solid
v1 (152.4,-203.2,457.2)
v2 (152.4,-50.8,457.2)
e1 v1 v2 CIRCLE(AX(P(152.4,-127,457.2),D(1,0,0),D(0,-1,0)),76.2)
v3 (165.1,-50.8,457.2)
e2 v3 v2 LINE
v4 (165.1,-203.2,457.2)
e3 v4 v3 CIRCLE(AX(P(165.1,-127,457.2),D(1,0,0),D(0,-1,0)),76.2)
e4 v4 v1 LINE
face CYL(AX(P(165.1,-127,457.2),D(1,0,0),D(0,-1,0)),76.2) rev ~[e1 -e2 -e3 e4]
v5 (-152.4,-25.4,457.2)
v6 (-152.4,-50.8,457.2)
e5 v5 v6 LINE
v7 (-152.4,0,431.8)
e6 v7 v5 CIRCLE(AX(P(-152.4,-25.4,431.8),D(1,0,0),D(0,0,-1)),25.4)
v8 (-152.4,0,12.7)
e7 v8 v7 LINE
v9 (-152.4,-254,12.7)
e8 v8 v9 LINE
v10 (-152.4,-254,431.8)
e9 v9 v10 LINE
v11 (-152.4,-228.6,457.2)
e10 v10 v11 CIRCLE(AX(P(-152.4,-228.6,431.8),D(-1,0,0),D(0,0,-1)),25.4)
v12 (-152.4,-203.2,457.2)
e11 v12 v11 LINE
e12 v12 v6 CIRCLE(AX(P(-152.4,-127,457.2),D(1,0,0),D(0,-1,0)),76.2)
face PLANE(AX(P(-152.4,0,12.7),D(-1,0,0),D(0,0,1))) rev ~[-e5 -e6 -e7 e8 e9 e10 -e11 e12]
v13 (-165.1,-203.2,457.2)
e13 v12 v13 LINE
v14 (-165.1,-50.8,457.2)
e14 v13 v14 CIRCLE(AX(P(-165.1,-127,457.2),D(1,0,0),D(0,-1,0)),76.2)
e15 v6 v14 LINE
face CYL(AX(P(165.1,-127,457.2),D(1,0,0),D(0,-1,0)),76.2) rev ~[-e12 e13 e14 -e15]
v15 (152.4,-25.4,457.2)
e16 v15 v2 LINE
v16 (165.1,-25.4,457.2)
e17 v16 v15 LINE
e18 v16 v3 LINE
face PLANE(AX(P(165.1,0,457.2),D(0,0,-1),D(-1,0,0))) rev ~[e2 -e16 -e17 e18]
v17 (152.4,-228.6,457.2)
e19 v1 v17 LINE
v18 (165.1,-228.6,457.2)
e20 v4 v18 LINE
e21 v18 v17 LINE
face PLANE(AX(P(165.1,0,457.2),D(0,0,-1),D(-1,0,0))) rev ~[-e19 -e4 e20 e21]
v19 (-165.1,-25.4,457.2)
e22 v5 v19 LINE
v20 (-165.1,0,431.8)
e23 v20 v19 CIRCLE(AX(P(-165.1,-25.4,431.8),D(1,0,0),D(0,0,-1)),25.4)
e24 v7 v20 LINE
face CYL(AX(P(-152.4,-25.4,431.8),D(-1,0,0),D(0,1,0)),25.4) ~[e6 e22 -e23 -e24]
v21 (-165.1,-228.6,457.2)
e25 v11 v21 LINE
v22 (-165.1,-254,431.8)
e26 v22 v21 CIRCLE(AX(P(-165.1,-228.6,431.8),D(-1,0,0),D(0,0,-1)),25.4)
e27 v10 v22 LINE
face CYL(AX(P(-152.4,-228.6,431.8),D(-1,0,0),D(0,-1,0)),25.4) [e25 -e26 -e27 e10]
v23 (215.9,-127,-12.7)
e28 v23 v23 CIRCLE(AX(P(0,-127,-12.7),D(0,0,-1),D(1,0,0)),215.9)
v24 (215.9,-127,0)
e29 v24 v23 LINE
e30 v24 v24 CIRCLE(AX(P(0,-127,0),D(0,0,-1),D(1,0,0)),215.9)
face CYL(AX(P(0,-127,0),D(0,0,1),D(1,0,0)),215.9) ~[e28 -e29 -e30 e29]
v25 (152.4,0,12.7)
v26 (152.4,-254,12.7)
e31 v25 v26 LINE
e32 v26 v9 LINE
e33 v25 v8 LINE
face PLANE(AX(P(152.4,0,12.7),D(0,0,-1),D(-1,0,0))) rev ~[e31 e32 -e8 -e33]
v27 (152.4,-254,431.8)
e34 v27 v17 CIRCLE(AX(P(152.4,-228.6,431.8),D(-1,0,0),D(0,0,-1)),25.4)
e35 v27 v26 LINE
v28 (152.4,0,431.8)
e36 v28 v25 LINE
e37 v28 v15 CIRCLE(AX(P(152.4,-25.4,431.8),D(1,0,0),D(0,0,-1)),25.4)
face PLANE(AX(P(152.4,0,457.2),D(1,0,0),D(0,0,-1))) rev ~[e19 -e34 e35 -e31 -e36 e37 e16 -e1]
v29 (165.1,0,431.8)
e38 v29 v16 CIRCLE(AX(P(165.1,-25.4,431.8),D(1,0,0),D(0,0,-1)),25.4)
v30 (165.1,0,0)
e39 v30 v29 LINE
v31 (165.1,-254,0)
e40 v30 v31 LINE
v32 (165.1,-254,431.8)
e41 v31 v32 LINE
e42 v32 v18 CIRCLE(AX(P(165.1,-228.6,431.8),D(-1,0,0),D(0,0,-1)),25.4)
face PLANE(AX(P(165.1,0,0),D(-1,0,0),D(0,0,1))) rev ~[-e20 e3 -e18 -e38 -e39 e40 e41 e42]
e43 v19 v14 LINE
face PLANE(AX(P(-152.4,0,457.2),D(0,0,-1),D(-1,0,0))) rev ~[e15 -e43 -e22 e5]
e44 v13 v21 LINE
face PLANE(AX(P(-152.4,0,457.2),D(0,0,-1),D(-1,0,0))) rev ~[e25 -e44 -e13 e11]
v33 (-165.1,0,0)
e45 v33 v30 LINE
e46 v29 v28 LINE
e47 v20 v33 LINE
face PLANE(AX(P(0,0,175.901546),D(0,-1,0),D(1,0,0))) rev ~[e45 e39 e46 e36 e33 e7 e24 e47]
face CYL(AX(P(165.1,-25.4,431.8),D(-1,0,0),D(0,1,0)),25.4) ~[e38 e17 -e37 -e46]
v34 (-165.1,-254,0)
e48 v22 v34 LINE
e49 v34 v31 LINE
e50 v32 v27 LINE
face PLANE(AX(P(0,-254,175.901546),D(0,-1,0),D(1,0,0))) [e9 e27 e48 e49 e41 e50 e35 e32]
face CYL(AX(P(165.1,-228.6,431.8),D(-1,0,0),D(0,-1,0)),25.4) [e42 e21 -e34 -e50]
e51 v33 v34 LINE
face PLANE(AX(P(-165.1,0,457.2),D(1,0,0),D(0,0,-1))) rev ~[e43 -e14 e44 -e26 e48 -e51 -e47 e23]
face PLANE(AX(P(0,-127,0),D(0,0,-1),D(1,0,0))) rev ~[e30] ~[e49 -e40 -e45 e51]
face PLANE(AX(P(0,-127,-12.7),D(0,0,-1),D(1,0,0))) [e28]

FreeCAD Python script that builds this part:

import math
import FreeCAD as App
import Part
import Sketcher
Q = App.Units.Quantity


def edges_at(feature, points):
    """Names of the edges that pass closest to the given points."""
    edges = feature.Shape.Edges
    near = lambda p: min(range(len(edges)), key=lambda i: edges[i].distToShape(Part.Vertex(*p))[0])
    return sorted({f"Edge{near(p) + 1}" for p in points})

doc = App.newDocument("Part")
body = doc.addObject("PartDesign::Body", "Body")

sketch1 = body.newObject("Sketcher::SketchObject", "Sketch")
sketch1.AttachmentSupport = (doc.getObject("XZ_Plane"), [""])
sketch1.MapMode = "FlatFace"
sketch1.addGeometry([
    Part.LineSegment(App.Vector(-152, 13, 0), App.Vector(-152, 457, 0)),
    Part.LineSegment(App.Vector(-152, 457, 0), App.Vector(-165, 457, 0)),
    Part.LineSegment(App.Vector(-165, 457, 0), App.Vector(-165, 0, 0)),
    Part.LineSegment(App.Vector(-165, 0, 0), App.Vector(165, 0, 0)),
    Part.LineSegment(App.Vector(165, 0, 0), App.Vector(165, 457, 0)),
    Part.LineSegment(App.Vector(165, 457, 0), App.Vector(152, 457, 0)),
    Part.LineSegment(App.Vector(152, 457, 0), App.Vector(152, 13, 0)),
    Part.LineSegment(App.Vector(152, 13, 0), App.Vector(-152, 13, 0)),
], False)
sketch1.addConstraint([
    Sketcher.Constraint("Coincident", 0, 2, 1, 1),
    Sketcher.Constraint("Coincident", 1, 2, 2, 1),
    Sketcher.Constraint("Coincident", 2, 2, 3, 1),
    Sketcher.Constraint("Coincident", 3, 2, 4, 1),
    Sketcher.Constraint("Coincident", 4, 2, 5, 1),
    Sketcher.Constraint("Coincident", 5, 2, 6, 1),
    Sketcher.Constraint("Coincident", 6, 2, 7, 1),
    Sketcher.Constraint("Coincident", 7, 2, 0, 1),
    Sketcher.Constraint("Vertical", 0),
    Sketcher.Constraint("Horizontal", 1),
    Sketcher.Constraint("Vertical", 2),
    Sketcher.Constraint("Horizontal", 3),
    Sketcher.Constraint("Vertical", 4),
    Sketcher.Constraint("Horizontal", 5),
    Sketcher.Constraint("Vertical", 6),
    Sketcher.Constraint("Horizontal", 7),
    Sketcher.Constraint("Symmetric", 2, 2, 3, 2, -1, 1),
    Sketcher.Constraint("Symmetric", 0, 2, 5, 2, -2),
    Sketcher.Constraint("DistanceX", 3, 1, 3, 2, Q("13 in")),
    Sketcher.Constraint("DistanceX", 7, 2, 7, 1, Q("12 in")),
    Sketcher.Constraint("DistanceY", 2, 2, 2, 1, Q("18 in")),
    Sketcher.Constraint("DistanceY", 0, 1, 0, 2, Q("17.5 in")),
])
pad1 = body.newObject("PartDesign::Pad", "Pad")
pad1.Profile = sketch1
pad1.Length = Q("10 in")

sketch2 = body.newObject("Sketcher::SketchObject", "Sketch001")
sketch2.AttachmentSupport = (doc.getObject("XY_Plane"), [""])
sketch2.MapMode = "FlatFace"
sketch2.addGeometry(Part.Circle(App.Vector(0, -127, 0), App.Vector(0, 0, 1), 216), False)
sketch2.addConstraint([
    Sketcher.Constraint("PointOnObject", 0, 3, -2),
    Sketcher.Constraint("Diameter", 0, Q("17 in")),
    Sketcher.Constraint("DistanceY", 0, 3, -1, 1, Q("5 in")),
])
pad2 = body.newObject("PartDesign::Pad", "Pad001")
pad2.Profile = sketch2
pad2.Length = Q("0.5 in")
pad2.Reversed = True

sketch3 = body.newObject("Sketcher::SketchObject", "Sketch002")
sketch3.AttachmentSupport = (doc.getObject("YZ_Plane"), [""])
sketch3.MapMode = "FlatFace"
sketch3.AttachmentOffset = App.Placement(App.Vector(0, 0, 6.5 * 25.4), App.Rotation())
sketch3.addGeometry([
    Part.LineSegment(App.Vector(-51, 457, 0), App.Vector(-203, 457, 0)),
    Part.ArcOfCircle(Part.Circle(App.Vector(-127, 457, 0), App.Vector(0, 0, 1), 76), math.radians(180), math.radians(360)),
], False)
sketch3.addConstraint([
    Sketcher.Constraint("Coincident", 0, 1, 1, 2),
    Sketcher.Constraint("Coincident", 1, 1, 0, 2),
    Sketcher.Constraint("Horizontal", 0),
    Sketcher.Constraint("Horizontal", 1, 3, 0, 1),
    Sketcher.Constraint("Radius", 1, Q("3 in")),
    Sketcher.Constraint("DistanceX", 1, 3, -1, 1, Q("5 in")),
    Sketcher.Constraint("DistanceY", -1, 1, 1, 3, Q("18 in")),
])
pocket1 = body.newObject("PartDesign::Pocket", "Pocket")
pocket1.Profile = sketch3
pocket1.Type = "ThroughAll"
doc.recompute()

fillet = body.newObject("PartDesign::Fillet", "Fillet")
fillet.Base = (pocket1, edges_at(pocket1, [
    (158.75, -254, 457.2),
    (158.75, 0, 457.2),
    (-158.75, 0, 457.2),
    (-158.75, -254, 457.2),
]))
fillet.Radius = Q("1 in")

doc.recompute()
